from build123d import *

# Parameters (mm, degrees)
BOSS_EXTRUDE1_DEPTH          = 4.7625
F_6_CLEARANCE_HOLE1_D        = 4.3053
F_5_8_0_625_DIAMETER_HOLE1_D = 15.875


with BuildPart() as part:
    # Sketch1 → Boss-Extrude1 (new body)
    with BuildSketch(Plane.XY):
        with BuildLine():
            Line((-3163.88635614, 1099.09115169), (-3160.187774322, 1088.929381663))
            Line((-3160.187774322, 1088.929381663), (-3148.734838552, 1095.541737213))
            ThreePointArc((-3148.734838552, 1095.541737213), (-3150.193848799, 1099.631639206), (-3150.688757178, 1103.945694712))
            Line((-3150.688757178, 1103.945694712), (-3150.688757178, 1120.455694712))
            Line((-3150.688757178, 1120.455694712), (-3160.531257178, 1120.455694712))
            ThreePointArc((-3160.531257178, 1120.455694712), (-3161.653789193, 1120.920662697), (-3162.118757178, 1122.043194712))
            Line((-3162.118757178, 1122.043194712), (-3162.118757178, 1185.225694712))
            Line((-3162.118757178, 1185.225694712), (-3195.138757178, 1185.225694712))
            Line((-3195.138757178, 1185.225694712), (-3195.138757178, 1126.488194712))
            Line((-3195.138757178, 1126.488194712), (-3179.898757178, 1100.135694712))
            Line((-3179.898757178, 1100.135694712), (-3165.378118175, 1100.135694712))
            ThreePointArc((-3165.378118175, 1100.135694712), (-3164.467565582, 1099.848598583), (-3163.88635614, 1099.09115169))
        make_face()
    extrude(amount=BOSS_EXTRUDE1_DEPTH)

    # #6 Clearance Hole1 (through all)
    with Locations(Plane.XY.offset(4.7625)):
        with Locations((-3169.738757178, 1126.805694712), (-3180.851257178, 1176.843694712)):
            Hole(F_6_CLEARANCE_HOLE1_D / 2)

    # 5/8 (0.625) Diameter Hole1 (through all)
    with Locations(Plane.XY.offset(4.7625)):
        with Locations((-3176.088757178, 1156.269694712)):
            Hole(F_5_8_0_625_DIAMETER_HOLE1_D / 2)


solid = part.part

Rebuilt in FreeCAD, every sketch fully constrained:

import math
import FreeCAD as App
import Part
import Sketcher
from FreeCAD import Vector
Q = App.Units.Quantity

doc = App.newDocument("Part")
body = doc.addObject("PartDesign::Body", "Body")

sketch1 = body.newObject("Sketcher::SketchObject", "Sketch")
sketch1.AttachmentSupport = (doc.getObject("XY_Plane"), [""])
sketch1.MapMode = "FlatFace"
sketch1.addGeometry(Part.LineSegment(Vector(-3163.9, 1099.1, 0), Vector(-3160.2, 1088.9, 0)), False)
sketch1.addGeometry(Part.LineSegment(Vector(-3160.2, 1088.9, 0), Vector(-3148.7, 1095.5, 0)), False)
sketch1.addGeometry(Part.ArcOfCircle(Part.Circle(Vector(-3131.6, 1103.9, 0), Vector(0, 0, 1), 19.1), math.radians(-180), math.radians(-154)), False)
sketch1.addGeometry(Part.LineSegment(Vector(-3150.7, 1103.9, 0), Vector(-3150.7, 1120.5, 0)), False)
sketch1.addGeometry(Part.LineSegment(Vector(-3150.7, 1120.5, 0), Vector(-3160.5, 1120.5, 0)), False)
sketch1.addGeometry(Part.ArcOfCircle(Part.Circle(Vector(-3160.5, 1122, 0), Vector(0, 0, 1), 1.6), math.radians(180), math.radians(270)), False)
sketch1.addGeometry(Part.LineSegment(Vector(-3162.1, 1122, 0), Vector(-3162.1, 1185.2, 0)), False)
sketch1.addGeometry(Part.LineSegment(Vector(-3162.1, 1185.2, 0), Vector(-3195.1, 1185.2, 0)), False)
sketch1.addGeometry(Part.LineSegment(Vector(-3195.1, 1185.2, 0), Vector(-3195.1, 1126.5, 0)), False)
sketch1.addGeometry(Part.LineSegment(Vector(-3195.1, 1126.5, 0), Vector(-3179.9, 1100.1, 0)), False)
sketch1.addGeometry(Part.LineSegment(Vector(-3179.9, 1100.1, 0), Vector(-3165.4, 1100.1, 0)), False)
sketch1.addGeometry(Part.ArcOfCircle(Part.Circle(Vector(-3165.4, 1098.5, 0), Vector(0, 0, 1), 1.6), math.radians(20), math.radians(90)), False)
sketch1.addConstraint(Sketcher.Constraint("Coincident", 0, 2, 1, 1))
sketch1.addConstraint(Sketcher.Constraint("Coincident", 1, 2, 2, 2))
sketch1.addConstraint(Sketcher.Constraint("Tangent", 2, 1, 3, 1))
sketch1.addConstraint(Sketcher.Constraint("Coincident", 3, 2, 4, 1))
sketch1.addConstraint(Sketcher.Constraint("Tangent", 4, 2, 5, 2))
sketch1.addConstraint(Sketcher.Constraint("Tangent", 5, 1, 6, 1))
sketch1.addConstraint(Sketcher.Constraint("Coincident", 6, 2, 7, 1))
sketch1.addConstraint(Sketcher.Constraint("Coincident", 7, 2, 8, 1))
sketch1.addConstraint(Sketcher.Constraint("Coincident", 8, 2, 9, 1))
sketch1.addConstraint(Sketcher.Constraint("Coincident", 9, 2, 10, 1))
sketch1.addConstraint(Sketcher.Constraint("Tangent", 10, 2, 11, 2))
sketch1.addConstraint(Sketcher.Constraint("Tangent", 11, 1, 0, 1))
sketch1.addConstraint(Sketcher.Constraint("Vertical", 3))
sketch1.addConstraint(Sketcher.Constraint("Horizontal", 4))
sketch1.addConstraint(Sketcher.Constraint("Vertical", 6))
sketch1.addConstraint(Sketcher.Constraint("Horizontal", 7))
sketch1.addConstraint(Sketcher.Constraint("Vertical", 8))
sketch1.addConstraint(Sketcher.Constraint("Horizontal", 10))
sketch1.addConstraint(Sketcher.Constraint("Equal", 5, 11))
sketch1.addConstraint(Sketcher.Constraint("Radius", 2, Q("0.75 in")))
sketch1.addConstraint(Sketcher.Constraint("DistanceX", 7, 2, 7, 1, Q("1.3 in")))
sketch1.addConstraint(Sketcher.Constraint("Angle", 0, Q("-70 deg")))
sketch1.addConstraint(Sketcher.Constraint("Angle", 1, Q("30 deg")))
sketch1.addConstraint(Sketcher.Constraint("Radius", 5, Q("0.0625 in")))
sketch1.addConstraint(Sketcher.Constraint("DistanceY", 3, 1, 3, 2, Q("0.65 in")))
sketch1.addConstraint(Sketcher.Constraint("DistanceY", 2, 1, 6, 2, Q("3.2 in")))
sketch1.addConstraint(Sketcher.Constraint("DistanceY", 11, 3, 8, 2, Q("1.1 in")))
sketch1.addConstraint(Sketcher.Constraint("DistanceY", 9, 2, 4, 2, Q("0.8 in")))
sketch1.addConstraint(Sketcher.Constraint("DistanceX", 9, 2, 5, 1, Q("0.7 in")))
sketch1.addConstraint(Sketcher.Constraint("DistanceX", 5, 1, 3, 2, Q("0.45 in")))
sketch1.addConstraint(Sketcher.Constraint("DistanceX", 10, 1, 10, 2, 14.520639))
sketch1.addConstraint(Sketcher.Constraint("Distance", 0, 10.81393))
sketch1.addConstraint(Sketcher.Constraint("DistanceX", 11, 3, -1, 1, 3165.378118))
sketch1.addConstraint(Sketcher.Constraint("DistanceY", -1, 1, 0, 2, 1088.929382))
pad1 = body.newObject("PartDesign::Pad", "Pad")
pad1.Profile = sketch1
pad1.Length = Q("0.1875 in")

sketch2 = body.newObject("Sketcher::SketchObject", "Sketch001")
sketch2.AttachmentSupport = (doc.getObject("XY_Plane"), [""])
sketch2.MapMode = "FlatFace"
sketch2.AttachmentOffset = App.Placement(Vector(0, 0, 0.1875 * 25.4), App.Rotation())
sketch2.addGeometry(Part.Circle(Vector(-3169.7, 1126.8, 0), Vector(0, 0, 1), 2.2), False)
sketch2.addGeometry(Part.Circle(Vector(-3180.9, 1176.8, 0), Vector(0, 0, 1), 2.2), False)
sketch2.addConstraint(Sketcher.Constraint("Equal", 0, 1))
sketch2.addConstraint(Sketcher.Constraint("Diameter", 0, Q("0.1695 in")))
sketch2.addConstraint(Sketcher.Constraint("DistanceY", 0, 3, 1, 3, Q("1.97 in")))
sketch2.addConstraint(Sketcher.Constraint("DistanceX", 1, 3, 0, 3, Q("0.4375 in")))
sketch2.addConstraint(Sketcher.Constraint("DistanceX", 0, 3, -1, 1, 3169.738757))
sketch2.addConstraint(Sketcher.Constraint("DistanceY", -1, 1, 0, 3, 1126.805695))
doc.recompute()
hole = body.newObject("PartDesign::Hole", "Hole")
hole.Profile = sketch2
hole.ThreadType = "None"
hole.Diameter = Q("0.1695 in")
hole.DepthType = "ThroughAll"

sketch3 = body.newObject("Sketcher::SketchObject", "Sketch002")
sketch3.AttachmentSupport = (doc.getObject("XY_Plane"), [""])
sketch3.MapMode = "FlatFace"
sketch3.AttachmentOffset = App.Placement(Vector(0, 0, 0.1875 * 25.4), App.Rotation())
sketch3.addGeometry(Part.Circle(Vector(-3176, 1156, 0), Vector(0, 0, 1), 8), False)
sketch3.addConstraint(Sketcher.Constraint("Diameter", 0, Q("0.625 in")))
sketch3.addConstraint(Sketcher.Constraint("DistanceX", 0, 3, -1, 1, 3176.088757))
sketch3.addConstraint(Sketcher.Constraint("DistanceY", -1, 1, 0, 3, 1156.269695))
doc.recompute()
hole2 = body.newObject("PartDesign::Hole", "Hole001")
hole2.Profile = sketch3
hole2.ThreadType = "None"
hole2.Diameter = Q("0.625 in")
hole2.DepthType = "ThroughAll"

doc.recompute()
